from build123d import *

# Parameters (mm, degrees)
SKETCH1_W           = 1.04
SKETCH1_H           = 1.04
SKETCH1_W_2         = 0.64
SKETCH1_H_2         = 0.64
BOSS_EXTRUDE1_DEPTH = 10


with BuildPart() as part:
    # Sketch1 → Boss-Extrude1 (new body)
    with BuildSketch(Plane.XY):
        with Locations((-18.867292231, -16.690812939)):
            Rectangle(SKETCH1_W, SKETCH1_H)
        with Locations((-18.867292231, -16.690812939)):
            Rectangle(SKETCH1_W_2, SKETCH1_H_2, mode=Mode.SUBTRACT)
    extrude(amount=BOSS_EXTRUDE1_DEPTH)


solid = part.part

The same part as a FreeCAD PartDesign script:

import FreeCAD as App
import Part
import Sketcher

doc = App.newDocument("Part")
params = doc.addObject("Spreadsheet::Sheet", "Params")
for row, (alias, value) in enumerate([
    ("sketch1_width", "1.04 mm"),
    ("sketch1_width2", "0.64 mm"),
    ("pad1_length", "10 mm"),
], start=1):
    params.set(f"A{row}", alias)
    params.set(f"B{row}", "=" + value)
    params.setAlias(f"B{row}", alias)

body = doc.addObject("PartDesign::Body", "Body")

# Sketch on XY plane
sketch1 = body.newObject("Sketcher::SketchObject", "Sketch")
sketch1.AttachmentSupport = (doc.getObject("XY_Plane"), [""])
sketch1.MapMode = "FlatFace"
sketch1.addGeometry(Part.LineSegment(App.Vector(-19.4, -16.2, 0), App.Vector(-19.4, -17.2, 0)), False)
sketch1.addGeometry(Part.LineSegment(App.Vector(-19.4, -17.2, 0), App.Vector(-18.3, -17.2, 0)), False)
sketch1.addGeometry(Part.LineSegment(App.Vector(-18.3, -17.2, 0), App.Vector(-18.3, -16.2, 0)), False)
sketch1.addGeometry(Part.LineSegment(App.Vector(-18.3, -16.2, 0), App.Vector(-19.4, -16.2, 0)), False)
sketch1.addGeometry(Part.LineSegment(App.Vector(-18.5, -17, 0), App.Vector(-19.2, -17, 0)), False)
sketch1.addGeometry(Part.LineSegment(App.Vector(-19.2, -17, 0), App.Vector(-19.2, -16.4, 0)), False)
sketch1.addGeometry(Part.LineSegment(App.Vector(-19.2, -16.4, 0), App.Vector(-18.5, -16.4, 0)), False)
sketch1.addGeometry(Part.LineSegment(App.Vector(-18.5, -16.4, 0), App.Vector(-18.5, -17, 0)), False)
sketch1.addConstraint(Sketcher.Constraint("Coincident", 0, 2, 1, 1))
sketch1.addConstraint(Sketcher.Constraint("Coincident", 1, 2, 2, 1))
sketch1.addConstraint(Sketcher.Constraint("Coincident", 2, 2, 3, 1))
sketch1.addConstraint(Sketcher.Constraint("Coincident", 3, 2, 0, 1))
sketch1.addConstraint(Sketcher.Constraint("Coincident", 4, 2, 5, 1))
sketch1.addConstraint(Sketcher.Constraint("Coincident", 5, 2, 6, 1))
sketch1.addConstraint(Sketcher.Constraint("Coincident", 6, 2, 7, 1))
sketch1.addConstraint(Sketcher.Constraint("Coincident", 7, 2, 4, 1))
sketch1.addConstraint(Sketcher.Constraint("Vertical", 0))
sketch1.addConstraint(Sketcher.Constraint("Horizontal", 1))
sketch1.addConstraint(Sketcher.Constraint("Vertical", 2))
sketch1.addConstraint(Sketcher.Constraint("Horizontal", 3))
sketch1.addConstraint(Sketcher.Constraint("Horizontal", 4))
sketch1.addConstraint(Sketcher.Constraint("Vertical", 5))
sketch1.addConstraint(Sketcher.Constraint("Horizontal", 6))
sketch1.addConstraint(Sketcher.Constraint("Vertical", 7))
sketch1.addConstraint(Sketcher.Constraint("Equal", 3, 0))
sketch1.addConstraint(Sketcher.Constraint("Equal", 6, 5))
sketch1.addConstraint(Sketcher.Constraint("DistanceX", 1, 1, 1, 2, 1.04))
sketch1.addConstraint(Sketcher.Constraint("DistanceX", 4, 2, 4, 1, 0.64))
sketch1.addConstraint(Sketcher.Constraint("DistanceX", 0, 2, 4, 2, 0.2))
sketch1.addConstraint(Sketcher.Constraint("DistanceY", 0, 2, 4, 2, 0.2))
sketch1.addConstraint(Sketcher.Constraint("DistanceX", 0, 2, -1, 1, 19.387292))
sketch1.addConstraint(Sketcher.Constraint("DistanceY", 0, 2, -1, 1, 17.210813))
sketch1.setExpression("Constraints[18]", "Params.sketch1_width")
sketch1.setExpression("Constraints[19]", "Params.sketch1_width2")
pad1 = body.newObject("PartDesign::Pad", "Pad")
pad1.Profile = sketch1
pad1.setExpression("Length", "Params.pad1_length")

doc.recompute()
